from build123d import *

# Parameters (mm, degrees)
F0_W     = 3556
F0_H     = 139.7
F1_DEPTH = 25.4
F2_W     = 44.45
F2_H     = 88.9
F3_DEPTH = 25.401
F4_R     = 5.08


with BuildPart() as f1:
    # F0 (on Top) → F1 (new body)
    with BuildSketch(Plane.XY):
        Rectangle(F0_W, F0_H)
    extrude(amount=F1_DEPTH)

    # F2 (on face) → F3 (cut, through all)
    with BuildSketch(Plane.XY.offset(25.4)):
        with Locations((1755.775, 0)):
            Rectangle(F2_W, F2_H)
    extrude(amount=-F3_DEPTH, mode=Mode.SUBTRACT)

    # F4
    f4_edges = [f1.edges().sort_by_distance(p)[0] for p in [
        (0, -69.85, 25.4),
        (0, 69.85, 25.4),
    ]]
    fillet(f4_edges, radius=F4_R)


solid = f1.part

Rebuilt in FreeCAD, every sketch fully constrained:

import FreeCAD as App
import Part
import Sketcher

V = App.Vector
Q = App.Units.Quantity


def edges_at(feature, points):
    """Names of the edges that pass closest to the given points."""
    edges = feature.Shape.Edges
    near = lambda p: min(range(len(edges)), key=lambda i: edges[i].distToShape(Part.Vertex(*p))[0])
    return sorted({f"Edge{near(p) + 1}" for p in points})

doc = App.newDocument("Part")
body = doc.addObject("PartDesign::Body", "Body")

# Sketch on XY plane
sketch1 = body.newObject("Sketcher::SketchObject", "Sketch")
sketch1.AttachmentSupport = (doc.getObject("XY_Plane"), [""])
sketch1.MapMode = "FlatFace"
sketch1.addGeometry([
    Part.LineSegment(V(-1778, 70, 0), V(-1778, -70, 0)),
    Part.LineSegment(V(-1778, -70, 0), V(1778, -70, 0)),
    Part.LineSegment(V(1778, -70, 0), V(1778, 70, 0)),
    Part.LineSegment(V(1778, 70, 0), V(-1778, 70, 0)),
], False)
sketch1.addConstraint([
    Sketcher.Constraint("Coincident", 0, 2, 1, 1),
    Sketcher.Constraint("Coincident", 1, 2, 2, 1),
    Sketcher.Constraint("Coincident", 2, 2, 3, 1),
    Sketcher.Constraint("Coincident", 3, 2, 0, 1),
    Sketcher.Constraint("Vertical", 0),
    Sketcher.Constraint("Horizontal", 1),
    Sketcher.Constraint("Vertical", 2),
    Sketcher.Constraint("Horizontal", 3),
    Sketcher.Constraint("Symmetric", 0, 2, 2, 2, -1, 1),
    Sketcher.Constraint("DistanceX", 1, 1, 1, 2, Q("140 in")),
    Sketcher.Constraint("DistanceY", 0, 2, 0, 1, Q("5.5 in")),
])
pad1 = body.newObject("PartDesign::Pad", "Pad")
pad1.Profile = sketch1
pad1.Length = Q("1 in")

# Sketch on XY plane
sketch2 = body.newObject("Sketcher::SketchObject", "Sketch001")
sketch2.AttachmentSupport = (doc.getObject("XY_Plane"), [""])
sketch2.MapMode = "FlatFace"
sketch2.AttachmentOffset = App.Placement(V(0, 0, 1 * 25.4), App.Rotation())
sketch2.addGeometry([
    Part.LineSegment(V(1734, 44, 0), V(1734, -44, 0)),
    Part.LineSegment(V(1734, -44, 0), V(1778, -44, 0)),
    Part.LineSegment(V(1778, -44, 0), V(1778, 44, 0)),
    Part.LineSegment(V(1778, 44, 0), V(1734, 44, 0)),
], False)
sketch2.addConstraint([
    Sketcher.Constraint("Coincident", 0, 2, 1, 1),
    Sketcher.Constraint("Coincident", 1, 2, 2, 1),
    Sketcher.Constraint("Coincident", 2, 2, 3, 1),
    Sketcher.Constraint("Coincident", 3, 2, 0, 1),
    Sketcher.Constraint("Vertical", 0),
    Sketcher.Constraint("Horizontal", 1),
    Sketcher.Constraint("Vertical", 2),
    Sketcher.Constraint("Horizontal", 3),
    Sketcher.Constraint("DistanceY", 0, 2, 0, 1, Q("3.5 in")),
    Sketcher.Constraint("DistanceX", -1, 1, 1, 2, Q("70 in")),
    Sketcher.Constraint("DistanceX", 1, 1, 1, 2, Q("1.75 in")),
    Sketcher.Constraint("DistanceY", 0, 2, -1, 1, Q("1.75 in")),
])
pocket1 = body.newObject("PartDesign::Pocket", "Pocket")
pocket1.Profile = sketch2
pocket1.Type = "ThroughAll"
doc.recompute()

fillet = body.newObject("PartDesign::Fillet", "Fillet")
fillet.Base = (pocket1, edges_at(pocket1, [(0, -69.85, 25.4), (0, 69.85, 25.4)]))
fillet.Radius = Q("0.2 in")

doc.recompute()
